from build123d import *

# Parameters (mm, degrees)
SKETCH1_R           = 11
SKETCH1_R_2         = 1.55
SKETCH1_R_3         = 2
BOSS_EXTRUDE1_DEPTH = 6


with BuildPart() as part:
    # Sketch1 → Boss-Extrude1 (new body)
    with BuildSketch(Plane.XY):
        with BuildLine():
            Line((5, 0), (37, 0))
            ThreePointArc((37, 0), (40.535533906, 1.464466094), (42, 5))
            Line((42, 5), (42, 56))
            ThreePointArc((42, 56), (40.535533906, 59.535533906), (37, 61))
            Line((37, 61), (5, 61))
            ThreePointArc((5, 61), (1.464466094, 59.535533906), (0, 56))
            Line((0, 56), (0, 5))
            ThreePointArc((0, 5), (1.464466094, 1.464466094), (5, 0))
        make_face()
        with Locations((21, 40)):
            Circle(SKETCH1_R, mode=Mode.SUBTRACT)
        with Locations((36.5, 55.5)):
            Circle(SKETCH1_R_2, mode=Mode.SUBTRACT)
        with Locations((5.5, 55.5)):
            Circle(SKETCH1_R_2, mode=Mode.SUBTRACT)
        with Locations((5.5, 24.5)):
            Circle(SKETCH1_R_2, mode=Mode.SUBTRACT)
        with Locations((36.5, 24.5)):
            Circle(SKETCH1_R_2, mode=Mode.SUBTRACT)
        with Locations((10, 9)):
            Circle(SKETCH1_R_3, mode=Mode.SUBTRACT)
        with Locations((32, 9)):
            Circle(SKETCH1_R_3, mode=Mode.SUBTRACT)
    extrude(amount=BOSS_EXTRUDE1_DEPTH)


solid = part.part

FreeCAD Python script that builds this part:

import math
import FreeCAD as App
import Part
import Sketcher

doc = App.newDocument("Part")
params = doc.addObject("Spreadsheet::Sheet", "Params")
for row, (alias, value) in enumerate([
    ("sketch1_diameter", "4 mm"),
    ("sketch1_diameter2", "22 mm"),
    ("sketch1_radius", "5 mm"),
    ("sketch1_diameter3", "3.1 mm"),
    ("sketch1_width", "32 mm"),
    ("pad1_length", "6 mm"),
], start=1):
    params.set(f"A{row}", alias)
    params.set(f"B{row}", "=" + value)
    params.setAlias(f"B{row}", alias)

body = doc.addObject("PartDesign::Body", "Body")

sketch1 = doc.addObject("Sketcher::SketchObject", "Sketch")
body.addObject(sketch1)
sketch1.AttachmentSupport = (doc.XY_Plane, [""])
sketch1.MapMode = "FlatFace"
sketch1.addGeometry([
    Part.LineSegment(App.Vector(5, 0, 0), App.Vector(37, 0, 0)),
    Part.ArcOfCircle(Part.Circle(App.Vector(37, 5, 0), App.Vector(0, 0, 1), 5), math.radians(-90), math.radians(0)),
    Part.LineSegment(App.Vector(42, 5, 0), App.Vector(42, 56, 0)),
    Part.ArcOfCircle(Part.Circle(App.Vector(37, 56, 0), App.Vector(0, 0, 1), 5), math.radians(0), math.radians(90)),
    Part.LineSegment(App.Vector(37, 61, 0), App.Vector(5, 61, 0)),
    Part.ArcOfCircle(Part.Circle(App.Vector(5, 56, 0), App.Vector(0, 0, 1), 5), math.radians(90), math.radians(180)),
    Part.LineSegment(App.Vector(0, 56, 0), App.Vector(0, 5, 0)),
    Part.ArcOfCircle(Part.Circle(App.Vector(5, 5, 0), App.Vector(0, 0, 1), 5), math.radians(180), math.radians(270)),
    Part.Circle(App.Vector(10, 9, 0), App.Vector(0, 0, 1), 2),
    Part.Circle(App.Vector(5.5, 24.5, 0), App.Vector(0, 0, 1), 1.6),
    Part.Circle(App.Vector(32, 9, 0), App.Vector(0, 0, 1), 2),
    Part.Circle(App.Vector(36.5, 24.5, 0), App.Vector(0, 0, 1), 1.6),
    Part.Circle(App.Vector(5.5, 55.5, 0), App.Vector(0, 0, 1), 1.6),
    Part.Circle(App.Vector(21, 40, 0), App.Vector(0, 0, 1), 11),
    Part.Circle(App.Vector(36.5, 55.5, 0), App.Vector(0, 0, 1), 1.6),
], False)
sketch1.addConstraint([
    Sketcher.Constraint("Tangent", 0, 2, 1, 1),
    Sketcher.Constraint("Tangent", 1, 2, 2, 1),
    Sketcher.Constraint("Tangent", 2, 2, 3, 1),
    Sketcher.Constraint("Tangent", 3, 2, 4, 1),
    Sketcher.Constraint("Tangent", 4, 2, 5, 1),
    Sketcher.Constraint("Tangent", 5, 2, 6, 1),
    Sketcher.Constraint("Tangent", 6, 2, 7, 1),
    Sketcher.Constraint("Tangent", 7, 2, 0, 1),
    Sketcher.Constraint("Horizontal", 0),
    Sketcher.Constraint("Vertical", 2),
    Sketcher.Constraint("Horizontal", 4),
    Sketcher.Constraint("Vertical", 6),
    Sketcher.Constraint("Equal", 1, 3),
    Sketcher.Constraint("Equal", 3, 5),
    Sketcher.Constraint("Equal", 5, 7),
    Sketcher.Constraint("Equal", 8, 10),
    Sketcher.Constraint("Equal", 9, 11),
    Sketcher.Constraint("Equal", 11, 12),
    Sketcher.Constraint("Equal", 12, 14),
    Sketcher.Constraint("PointOnObject", 0, 2, -1),
    Sketcher.Constraint("PointOnObject", 5, 2, -2),
    Sketcher.Constraint("Horizontal", 8, 3, 10, 3),
    Sketcher.Constraint("Horizontal", 9, 3, 11, 3),
    Sketcher.Constraint("Horizontal", 12, 3, 14, 3),
    Sketcher.Constraint("Vertical", 9, 3, 12, 3),
    Sketcher.Constraint("Vertical", 11, 3, 14, 3),
    Sketcher.Constraint("Diameter", 8, 4.0),
    Sketcher.Constraint("Diameter", 13, 22.0),
    Sketcher.Constraint("Radius", 1, 5.0),
    Sketcher.Constraint("Diameter", 9, 3.1),
    Sketcher.Constraint("DistanceX", 0, 1, 0, 2, 32.0),
    Sketcher.Constraint("DistanceY", 2, 1, 2, 2, 51.0),
    Sketcher.Constraint("DistanceX", -1, 1, 8, 3, 10.0),
    Sketcher.Constraint("DistanceY", -1, 1, 8, 3, 9.0),
    Sketcher.Constraint("DistanceX", -1, 1, 10, 3, 32.0),
    Sketcher.Constraint("DistanceX", -1, 1, 13, 3, 21.0),
    Sketcher.Constraint("DistanceY", -1, 1, 13, 3, 40.0),
    Sketcher.Constraint("DistanceX", 9, 3, 11, 3, 31.0),
    Sketcher.Constraint("DistanceY", 9, 3, 12, 3, 31.0),
    Sketcher.Constraint("DistanceX", -1, 1, 9, 3, 5.5),
    Sketcher.Constraint("DistanceY", -1, 1, 9, 3, 24.5),
])
sketch1.setExpression("Constraints[26]", "Params.sketch1_diameter")
sketch1.setExpression("Constraints[27]", "Params.sketch1_diameter2")
sketch1.setExpression("Constraints[28]", "Params.sketch1_radius")
sketch1.setExpression("Constraints[29]", "Params.sketch1_diameter3")
sketch1.setExpression("Constraints[30]", "Params.sketch1_width")
pad1 = doc.addObject("PartDesign::Pad", "Pad")
body.addObject(pad1)
pad1.Profile = sketch1
pad1.setExpression("Length", "Params.pad1_length")

doc.recompute()
